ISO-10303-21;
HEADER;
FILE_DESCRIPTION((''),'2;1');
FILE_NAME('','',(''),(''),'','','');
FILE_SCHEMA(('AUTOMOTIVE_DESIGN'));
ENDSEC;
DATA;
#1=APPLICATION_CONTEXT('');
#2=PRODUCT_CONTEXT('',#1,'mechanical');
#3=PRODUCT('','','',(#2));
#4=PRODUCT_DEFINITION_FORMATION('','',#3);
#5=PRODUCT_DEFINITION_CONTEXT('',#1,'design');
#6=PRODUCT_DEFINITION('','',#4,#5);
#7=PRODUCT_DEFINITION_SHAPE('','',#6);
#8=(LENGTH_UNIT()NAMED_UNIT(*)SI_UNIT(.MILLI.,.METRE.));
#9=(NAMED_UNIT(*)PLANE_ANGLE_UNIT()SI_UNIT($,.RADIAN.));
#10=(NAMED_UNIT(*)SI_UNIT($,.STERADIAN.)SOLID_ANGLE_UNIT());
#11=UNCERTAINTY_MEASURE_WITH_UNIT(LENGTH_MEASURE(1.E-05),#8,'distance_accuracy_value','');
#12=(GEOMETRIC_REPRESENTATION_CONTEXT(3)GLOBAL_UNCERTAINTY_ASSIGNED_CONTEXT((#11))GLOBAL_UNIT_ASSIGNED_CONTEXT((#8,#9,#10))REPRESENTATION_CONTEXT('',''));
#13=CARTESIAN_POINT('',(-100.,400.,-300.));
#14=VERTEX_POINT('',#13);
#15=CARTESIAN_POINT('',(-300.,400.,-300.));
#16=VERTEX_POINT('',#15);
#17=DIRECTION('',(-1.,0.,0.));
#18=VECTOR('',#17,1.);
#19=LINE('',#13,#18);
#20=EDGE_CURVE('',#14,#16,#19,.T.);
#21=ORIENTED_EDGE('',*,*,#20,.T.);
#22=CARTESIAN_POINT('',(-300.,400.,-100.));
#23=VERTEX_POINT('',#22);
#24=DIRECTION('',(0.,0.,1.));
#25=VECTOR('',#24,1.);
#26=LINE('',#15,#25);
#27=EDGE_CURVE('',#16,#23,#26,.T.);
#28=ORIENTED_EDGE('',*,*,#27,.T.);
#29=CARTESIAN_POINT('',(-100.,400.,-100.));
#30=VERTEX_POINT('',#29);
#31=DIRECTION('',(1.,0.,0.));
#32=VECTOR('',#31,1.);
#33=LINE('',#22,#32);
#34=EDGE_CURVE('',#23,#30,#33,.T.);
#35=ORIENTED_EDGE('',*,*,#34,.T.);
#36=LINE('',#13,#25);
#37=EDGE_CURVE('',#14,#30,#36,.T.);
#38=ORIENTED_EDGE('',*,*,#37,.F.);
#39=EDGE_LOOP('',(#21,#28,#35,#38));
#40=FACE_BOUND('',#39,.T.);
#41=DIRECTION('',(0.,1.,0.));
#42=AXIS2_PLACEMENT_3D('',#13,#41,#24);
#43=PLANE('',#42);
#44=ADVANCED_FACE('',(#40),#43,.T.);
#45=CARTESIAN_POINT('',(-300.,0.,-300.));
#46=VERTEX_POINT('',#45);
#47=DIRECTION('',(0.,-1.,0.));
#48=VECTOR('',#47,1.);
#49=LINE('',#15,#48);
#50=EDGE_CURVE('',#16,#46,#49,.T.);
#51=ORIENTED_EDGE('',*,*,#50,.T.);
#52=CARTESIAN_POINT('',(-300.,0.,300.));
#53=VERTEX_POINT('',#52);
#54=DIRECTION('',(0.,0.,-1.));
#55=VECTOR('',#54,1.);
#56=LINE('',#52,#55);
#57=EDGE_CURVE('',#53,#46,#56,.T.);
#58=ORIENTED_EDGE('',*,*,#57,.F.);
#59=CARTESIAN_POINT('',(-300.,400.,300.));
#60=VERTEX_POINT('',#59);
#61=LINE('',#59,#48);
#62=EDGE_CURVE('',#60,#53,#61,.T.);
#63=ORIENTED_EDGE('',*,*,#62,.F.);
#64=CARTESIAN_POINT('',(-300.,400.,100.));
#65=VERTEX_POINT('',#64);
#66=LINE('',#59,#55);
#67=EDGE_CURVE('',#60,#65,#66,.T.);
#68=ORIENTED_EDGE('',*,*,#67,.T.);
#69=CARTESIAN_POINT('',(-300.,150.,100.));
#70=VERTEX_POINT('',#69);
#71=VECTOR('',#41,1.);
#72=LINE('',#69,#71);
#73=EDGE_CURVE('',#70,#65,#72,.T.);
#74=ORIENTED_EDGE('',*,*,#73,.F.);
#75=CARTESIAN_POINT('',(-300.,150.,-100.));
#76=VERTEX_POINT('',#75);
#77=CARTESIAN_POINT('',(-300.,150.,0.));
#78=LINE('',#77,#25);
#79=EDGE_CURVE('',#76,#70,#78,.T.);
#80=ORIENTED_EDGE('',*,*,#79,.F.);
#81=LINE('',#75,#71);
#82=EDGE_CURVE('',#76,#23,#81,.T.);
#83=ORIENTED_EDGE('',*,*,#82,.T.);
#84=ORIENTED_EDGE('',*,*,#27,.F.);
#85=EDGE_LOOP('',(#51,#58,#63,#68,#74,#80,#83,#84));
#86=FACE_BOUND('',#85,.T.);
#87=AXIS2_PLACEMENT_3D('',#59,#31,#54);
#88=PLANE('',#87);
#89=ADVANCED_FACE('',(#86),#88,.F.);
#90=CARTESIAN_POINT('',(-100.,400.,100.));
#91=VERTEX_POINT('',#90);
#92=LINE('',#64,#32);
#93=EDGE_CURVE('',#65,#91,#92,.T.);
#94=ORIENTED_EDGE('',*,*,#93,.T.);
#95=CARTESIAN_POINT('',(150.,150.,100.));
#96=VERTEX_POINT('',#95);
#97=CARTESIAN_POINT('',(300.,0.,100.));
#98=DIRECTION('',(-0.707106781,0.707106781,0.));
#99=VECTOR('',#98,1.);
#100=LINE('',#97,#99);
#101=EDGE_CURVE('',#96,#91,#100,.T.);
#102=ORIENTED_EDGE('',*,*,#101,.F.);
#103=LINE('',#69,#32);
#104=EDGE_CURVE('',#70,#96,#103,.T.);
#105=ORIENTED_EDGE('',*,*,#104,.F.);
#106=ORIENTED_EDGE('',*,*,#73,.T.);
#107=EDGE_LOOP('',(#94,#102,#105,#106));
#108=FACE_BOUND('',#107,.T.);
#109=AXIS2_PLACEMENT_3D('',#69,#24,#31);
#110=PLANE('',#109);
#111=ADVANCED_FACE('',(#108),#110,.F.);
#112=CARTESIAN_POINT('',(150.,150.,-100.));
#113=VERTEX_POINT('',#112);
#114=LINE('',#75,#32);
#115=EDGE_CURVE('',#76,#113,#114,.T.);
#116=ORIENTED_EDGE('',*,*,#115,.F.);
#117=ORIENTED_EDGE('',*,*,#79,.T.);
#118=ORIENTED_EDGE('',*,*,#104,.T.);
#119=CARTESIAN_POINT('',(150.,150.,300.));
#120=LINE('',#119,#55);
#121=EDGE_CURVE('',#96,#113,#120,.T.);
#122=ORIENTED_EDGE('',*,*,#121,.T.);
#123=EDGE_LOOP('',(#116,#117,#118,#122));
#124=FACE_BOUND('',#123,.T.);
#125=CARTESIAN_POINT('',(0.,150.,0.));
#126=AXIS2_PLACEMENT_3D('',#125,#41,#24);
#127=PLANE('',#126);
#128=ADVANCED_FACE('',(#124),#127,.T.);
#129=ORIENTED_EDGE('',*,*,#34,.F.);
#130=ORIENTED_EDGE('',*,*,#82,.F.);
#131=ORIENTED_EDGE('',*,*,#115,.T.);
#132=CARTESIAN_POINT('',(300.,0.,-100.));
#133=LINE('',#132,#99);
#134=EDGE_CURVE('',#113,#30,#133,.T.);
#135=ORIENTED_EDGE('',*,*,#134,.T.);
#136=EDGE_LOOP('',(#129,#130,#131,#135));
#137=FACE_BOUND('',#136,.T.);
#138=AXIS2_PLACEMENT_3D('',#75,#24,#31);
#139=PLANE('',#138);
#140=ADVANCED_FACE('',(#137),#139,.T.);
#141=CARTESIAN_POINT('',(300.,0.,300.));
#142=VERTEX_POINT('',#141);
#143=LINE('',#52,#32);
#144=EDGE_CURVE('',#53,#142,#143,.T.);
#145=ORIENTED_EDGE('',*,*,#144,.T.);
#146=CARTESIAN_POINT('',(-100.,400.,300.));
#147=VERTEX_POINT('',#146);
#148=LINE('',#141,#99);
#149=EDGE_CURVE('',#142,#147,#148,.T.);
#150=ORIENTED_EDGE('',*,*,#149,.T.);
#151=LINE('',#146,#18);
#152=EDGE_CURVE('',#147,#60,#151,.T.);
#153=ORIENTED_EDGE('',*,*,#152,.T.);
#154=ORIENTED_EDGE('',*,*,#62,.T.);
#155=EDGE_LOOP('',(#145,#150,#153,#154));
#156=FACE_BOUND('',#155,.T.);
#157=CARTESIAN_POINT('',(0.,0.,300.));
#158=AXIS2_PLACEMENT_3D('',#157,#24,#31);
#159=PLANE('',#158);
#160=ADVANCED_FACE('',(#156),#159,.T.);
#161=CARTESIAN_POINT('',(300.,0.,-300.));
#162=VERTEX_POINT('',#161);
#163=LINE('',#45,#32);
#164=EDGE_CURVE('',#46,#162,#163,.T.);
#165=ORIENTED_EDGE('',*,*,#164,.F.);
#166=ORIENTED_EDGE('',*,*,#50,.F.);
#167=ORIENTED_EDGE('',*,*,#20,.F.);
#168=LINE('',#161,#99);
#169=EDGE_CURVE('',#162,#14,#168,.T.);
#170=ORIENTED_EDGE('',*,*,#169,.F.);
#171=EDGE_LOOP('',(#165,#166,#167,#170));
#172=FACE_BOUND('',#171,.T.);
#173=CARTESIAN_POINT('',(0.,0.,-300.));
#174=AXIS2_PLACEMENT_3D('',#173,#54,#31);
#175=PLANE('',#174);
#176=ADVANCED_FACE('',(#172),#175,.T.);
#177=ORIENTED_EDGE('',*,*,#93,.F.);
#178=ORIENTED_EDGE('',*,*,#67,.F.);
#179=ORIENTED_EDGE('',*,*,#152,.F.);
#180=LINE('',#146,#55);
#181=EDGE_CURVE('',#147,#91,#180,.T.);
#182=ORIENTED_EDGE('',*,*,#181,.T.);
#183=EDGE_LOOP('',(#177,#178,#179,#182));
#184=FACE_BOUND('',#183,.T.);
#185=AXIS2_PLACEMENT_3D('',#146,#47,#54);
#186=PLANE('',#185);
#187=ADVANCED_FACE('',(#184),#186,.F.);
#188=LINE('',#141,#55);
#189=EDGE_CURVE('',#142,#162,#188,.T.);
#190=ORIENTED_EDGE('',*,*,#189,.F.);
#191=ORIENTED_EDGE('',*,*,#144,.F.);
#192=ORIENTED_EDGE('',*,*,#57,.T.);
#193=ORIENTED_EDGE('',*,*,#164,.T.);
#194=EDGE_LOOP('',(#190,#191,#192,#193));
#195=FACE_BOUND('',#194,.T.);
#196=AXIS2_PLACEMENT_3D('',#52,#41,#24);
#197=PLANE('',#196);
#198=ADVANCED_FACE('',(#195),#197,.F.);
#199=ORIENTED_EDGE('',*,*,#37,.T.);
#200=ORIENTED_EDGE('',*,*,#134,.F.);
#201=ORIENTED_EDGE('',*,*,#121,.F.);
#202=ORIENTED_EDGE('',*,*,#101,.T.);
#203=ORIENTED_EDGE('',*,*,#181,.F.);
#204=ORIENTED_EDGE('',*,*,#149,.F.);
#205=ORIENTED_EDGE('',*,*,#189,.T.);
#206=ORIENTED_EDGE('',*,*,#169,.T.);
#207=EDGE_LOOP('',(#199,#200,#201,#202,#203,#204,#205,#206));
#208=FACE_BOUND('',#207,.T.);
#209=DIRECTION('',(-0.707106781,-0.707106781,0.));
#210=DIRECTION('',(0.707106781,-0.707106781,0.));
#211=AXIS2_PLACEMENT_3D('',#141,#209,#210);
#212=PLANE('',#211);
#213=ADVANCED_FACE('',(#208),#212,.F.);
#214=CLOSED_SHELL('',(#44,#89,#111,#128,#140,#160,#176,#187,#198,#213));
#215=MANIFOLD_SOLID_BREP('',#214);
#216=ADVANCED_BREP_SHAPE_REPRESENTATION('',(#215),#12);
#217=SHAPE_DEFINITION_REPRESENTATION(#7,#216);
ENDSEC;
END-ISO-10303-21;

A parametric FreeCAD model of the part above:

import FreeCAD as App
import Part
import Sketcher

doc = App.newDocument("Part")
params = doc.addObject("Spreadsheet::Sheet", "Params")
for row, (alias, value) in enumerate([
    ("sketch1_width", "600 mm"),
    ("sketch1_width2", "200 mm"),
    ("sketch1_height", "400 mm"),
    ("pad1_length", "300 mm"),
    ("sketch2_width", "600 mm"),
    ("sketch2_height", "100 mm"),
    ("pocket1_length", "250 mm"),
], start=1):
    params.set(f"A{row}", alias)
    params.set(f"B{row}", "=" + value)
    params.setAlias(f"B{row}", alias)

body = doc.addObject("PartDesign::Body", "Body")

# Sketch on XY plane
sketch1 = body.newObject("Sketcher::SketchObject", "Sketch")
sketch1.AttachmentSupport = (doc.getObject("XY_Plane"), [""])
sketch1.MapMode = "FlatFace"
sketch1.addGeometry([
    Part.LineSegment(App.Vector(-300, 400, 0), App.Vector(-300, 0, 0)),
    Part.LineSegment(App.Vector(-300, 0, 0), App.Vector(300, 0, 0)),
    Part.LineSegment(App.Vector(300, 0, 0), App.Vector(-100, 400, 0)),
    Part.LineSegment(App.Vector(-100, 400, 0), App.Vector(-300, 400, 0)),
], False)
sketch1.addConstraint([
    Sketcher.Constraint("Coincident", 0, 2, 1, 1),
    Sketcher.Constraint("Coincident", 1, 2, 2, 1),
    Sketcher.Constraint("Coincident", 2, 2, 3, 1),
    Sketcher.Constraint("Coincident", 3, 2, 0, 1),
    Sketcher.Constraint("Vertical", 0),
    Sketcher.Constraint("Horizontal", 1),
    Sketcher.Constraint("Horizontal", 3),
    Sketcher.Constraint("Symmetric", 0, 2, 1, 2, -1, 1),
    Sketcher.Constraint("DistanceX", 1, 1, 1, 2, 600.0),
    Sketcher.Constraint("DistanceX", 3, 2, 3, 1, 200.0),
    Sketcher.Constraint("DistanceY", 0, 2, 0, 1, 400.0),
])
sketch1.setExpression("Constraints[8]", "Params.sketch1_width")
sketch1.setExpression("Constraints[9]", "Params.sketch1_width2")
sketch1.setExpression("Constraints[10]", "Params.sketch1_height")
pad1 = body.newObject("PartDesign::Pad", "Pad")
pad1.Profile = sketch1
pad1.setExpression("Length", "Params.pad1_length")

# Sketch on XZ plane
sketch2 = body.newObject("Sketcher::SketchObject", "Sketch001")
sketch2.AttachmentSupport = (doc.getObject("XZ_Plane"), [""])
sketch2.MapMode = "FlatFace"
sketch2.AttachmentOffset = App.Placement(App.Vector(0, 0, -400), App.Rotation())
sketch2.addGeometry([
    Part.LineSegment(App.Vector(-300, 0, 0), App.Vector(-300, 100, 0)),
    Part.LineSegment(App.Vector(-300, 100, 0), App.Vector(300, 100, 0)),
    Part.LineSegment(App.Vector(300, 100, 0), App.Vector(300, 0, 0)),
    Part.LineSegment(App.Vector(300, 0, 0), App.Vector(-300, 0, 0)),
], False)
sketch2.addConstraint([
    Sketcher.Constraint("Coincident", 0, 2, 1, 1),
    Sketcher.Constraint("Coincident", 1, 2, 2, 1),
    Sketcher.Constraint("Coincident", 2, 2, 3, 1),
    Sketcher.Constraint("Coincident", 3, 2, 0, 1),
    Sketcher.Constraint("Vertical", 0),
    Sketcher.Constraint("Horizontal", 1),
    Sketcher.Constraint("Vertical", 2),
    Sketcher.Constraint("Horizontal", 3),
    Sketcher.Constraint("Symmetric", 2, 2, 3, 2, -1, 1),
    Sketcher.Constraint("DistanceX", 1, 1, 1, 2, 600.0),
    Sketcher.Constraint("DistanceY", 0, 1, 0, 2, 100.0),
])
sketch2.setExpression("Constraints[9]", "Params.sketch2_width")
sketch2.setExpression("Constraints[10]", "Params.sketch2_height")
pocket1 = body.newObject("PartDesign::Pocket", "Pocket")
pocket1.Profile = sketch2
pocket1.setExpression("Length", "Params.pocket1_length")
pocket1.Reversed = True
doc.recompute()

mirrored = body.newObject("PartDesign::Mirrored", "Mirrored")
mirrored.Originals = [pad1, pocket1]
mirrored.MirrorPlane = (doc.getObject("XY_Plane"), [""])
body.Tip = mirrored

doc.recompute()
